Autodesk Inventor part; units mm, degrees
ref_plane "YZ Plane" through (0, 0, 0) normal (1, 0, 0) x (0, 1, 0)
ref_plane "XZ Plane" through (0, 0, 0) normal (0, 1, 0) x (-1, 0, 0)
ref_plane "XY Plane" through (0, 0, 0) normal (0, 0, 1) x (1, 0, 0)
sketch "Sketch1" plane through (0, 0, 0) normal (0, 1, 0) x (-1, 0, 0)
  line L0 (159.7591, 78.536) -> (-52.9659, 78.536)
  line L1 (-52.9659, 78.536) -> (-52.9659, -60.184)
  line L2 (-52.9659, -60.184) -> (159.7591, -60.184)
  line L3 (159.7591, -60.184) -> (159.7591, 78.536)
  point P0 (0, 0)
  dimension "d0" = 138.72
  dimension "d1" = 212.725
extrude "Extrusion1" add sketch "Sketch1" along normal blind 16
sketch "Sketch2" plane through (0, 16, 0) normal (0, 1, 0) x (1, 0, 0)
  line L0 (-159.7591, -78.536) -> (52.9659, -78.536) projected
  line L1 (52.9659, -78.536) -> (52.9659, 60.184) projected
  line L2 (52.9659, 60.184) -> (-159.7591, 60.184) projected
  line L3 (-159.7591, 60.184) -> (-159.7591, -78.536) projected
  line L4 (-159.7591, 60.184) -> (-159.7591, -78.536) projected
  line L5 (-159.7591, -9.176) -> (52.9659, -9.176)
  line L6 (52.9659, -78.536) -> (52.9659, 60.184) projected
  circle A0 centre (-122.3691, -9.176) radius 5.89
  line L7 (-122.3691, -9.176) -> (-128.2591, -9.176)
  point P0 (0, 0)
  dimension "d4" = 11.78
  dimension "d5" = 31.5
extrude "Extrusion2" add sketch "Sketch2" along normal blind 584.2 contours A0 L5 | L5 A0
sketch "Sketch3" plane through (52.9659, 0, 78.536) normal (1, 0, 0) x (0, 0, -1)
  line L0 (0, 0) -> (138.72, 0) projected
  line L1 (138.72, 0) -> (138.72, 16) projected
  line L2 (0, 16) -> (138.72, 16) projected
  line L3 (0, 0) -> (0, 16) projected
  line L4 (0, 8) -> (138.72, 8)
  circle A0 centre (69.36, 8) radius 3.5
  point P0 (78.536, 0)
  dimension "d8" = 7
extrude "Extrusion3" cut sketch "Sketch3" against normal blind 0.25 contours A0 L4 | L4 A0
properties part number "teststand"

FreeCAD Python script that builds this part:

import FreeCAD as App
import Part
import Sketcher
Q = App.Units.Quantity

doc = App.newDocument("Part")
body = doc.addObject("PartDesign::Body", "Body")

# Sketch on XZ plane
sketch1 = body.newObject("Sketcher::SketchObject", "Sketch")
sketch1.AttachmentSupport = (doc.getObject("XZ_Plane"), [""])
sketch1.MapMode = "FlatFace"
sketch1.addGeometry([
    Part.LineSegment(App.Vector(-160, -60, 0), App.Vector(-160, 79, 0)),
    Part.LineSegment(App.Vector(-160, 79, 0), App.Vector(53, 79, 0)),
    Part.LineSegment(App.Vector(53, 79, 0), App.Vector(53, -60, 0)),
    Part.LineSegment(App.Vector(53, -60, 0), App.Vector(-160, -60, 0)),
], False)
sketch1.addConstraint([
    Sketcher.Constraint("Coincident", 0, 2, 1, 1),
    Sketcher.Constraint("Coincident", 1, 2, 2, 1),
    Sketcher.Constraint("Coincident", 2, 2, 3, 1),
    Sketcher.Constraint("Coincident", 3, 2, 0, 1),
    Sketcher.Constraint("Vertical", 0),
    Sketcher.Constraint("Horizontal", 1),
    Sketcher.Constraint("Vertical", 2),
    Sketcher.Constraint("Horizontal", 3),
    Sketcher.Constraint("DistanceX", 1, 1, 1, 2, Q("8.375 in")),
    Sketcher.Constraint("DistanceY", 0, 1, 0, 2, 138.72),
    Sketcher.Constraint("DistanceX", 0, 2, -1, 1, 159.759),
    Sketcher.Constraint("DistanceY", -1, 1, 0, 2, 78.536),
])
pad1 = body.newObject("PartDesign::Pad", "Pad")
pad1.Profile = sketch1
pad1.Length = 16
pad1.Reversed = True

# Sketch on XZ plane
sketch2 = body.newObject("Sketcher::SketchObject", "Sketch001")
sketch2.AttachmentSupport = (doc.getObject("XZ_Plane"), [""])
sketch2.MapMode = "FlatFace"
sketch2.AttachmentOffset = App.Placement(App.Vector(0, 0, -16), App.Rotation())
sketch2.addGeometry(Part.Circle(App.Vector(-122, 9, 0), App.Vector(0, 0, 1), 6), False)
sketch2.addConstraint([
    Sketcher.Constraint("Diameter", 0, 11.78),
    Sketcher.Constraint("DistanceX", 0, 3, -1, 1, 122.369),
    Sketcher.Constraint("DistanceY", -1, 1, 0, 3, 9.176),
])
pad2 = body.newObject("PartDesign::Pad", "Pad001")
pad2.Profile = sketch2
pad2.Length = Q("23 in")
pad2.Reversed = True

# Sketch on YZ plane
sketch3 = body.newObject("Sketcher::SketchObject", "Sketch002")
sketch3.AttachmentSupport = (doc.getObject("YZ_Plane"), [""])
sketch3.MapMode = "FlatFace"
sketch3.AttachmentOffset = App.Placement(App.Vector(0, 0, 52.9659), App.Rotation())
sketch3.addGeometry(Part.Circle(App.Vector(8, 9.2, 0), App.Vector(0, 0, 1), 3.5), False)
sketch3.addConstraint([
    Sketcher.Constraint("Diameter", 0, Q("0.2756 in")),
    Sketcher.Constraint("DistanceX", -1, 1, 0, 3, 8.0),
    Sketcher.Constraint("DistanceY", -1, 1, 0, 3, 9.176),
])
pocket1 = body.newObject("PartDesign::Pocket", "Pocket")
pocket1.Profile = sketch3
pocket1.Length = 0.25

doc.recompute()
